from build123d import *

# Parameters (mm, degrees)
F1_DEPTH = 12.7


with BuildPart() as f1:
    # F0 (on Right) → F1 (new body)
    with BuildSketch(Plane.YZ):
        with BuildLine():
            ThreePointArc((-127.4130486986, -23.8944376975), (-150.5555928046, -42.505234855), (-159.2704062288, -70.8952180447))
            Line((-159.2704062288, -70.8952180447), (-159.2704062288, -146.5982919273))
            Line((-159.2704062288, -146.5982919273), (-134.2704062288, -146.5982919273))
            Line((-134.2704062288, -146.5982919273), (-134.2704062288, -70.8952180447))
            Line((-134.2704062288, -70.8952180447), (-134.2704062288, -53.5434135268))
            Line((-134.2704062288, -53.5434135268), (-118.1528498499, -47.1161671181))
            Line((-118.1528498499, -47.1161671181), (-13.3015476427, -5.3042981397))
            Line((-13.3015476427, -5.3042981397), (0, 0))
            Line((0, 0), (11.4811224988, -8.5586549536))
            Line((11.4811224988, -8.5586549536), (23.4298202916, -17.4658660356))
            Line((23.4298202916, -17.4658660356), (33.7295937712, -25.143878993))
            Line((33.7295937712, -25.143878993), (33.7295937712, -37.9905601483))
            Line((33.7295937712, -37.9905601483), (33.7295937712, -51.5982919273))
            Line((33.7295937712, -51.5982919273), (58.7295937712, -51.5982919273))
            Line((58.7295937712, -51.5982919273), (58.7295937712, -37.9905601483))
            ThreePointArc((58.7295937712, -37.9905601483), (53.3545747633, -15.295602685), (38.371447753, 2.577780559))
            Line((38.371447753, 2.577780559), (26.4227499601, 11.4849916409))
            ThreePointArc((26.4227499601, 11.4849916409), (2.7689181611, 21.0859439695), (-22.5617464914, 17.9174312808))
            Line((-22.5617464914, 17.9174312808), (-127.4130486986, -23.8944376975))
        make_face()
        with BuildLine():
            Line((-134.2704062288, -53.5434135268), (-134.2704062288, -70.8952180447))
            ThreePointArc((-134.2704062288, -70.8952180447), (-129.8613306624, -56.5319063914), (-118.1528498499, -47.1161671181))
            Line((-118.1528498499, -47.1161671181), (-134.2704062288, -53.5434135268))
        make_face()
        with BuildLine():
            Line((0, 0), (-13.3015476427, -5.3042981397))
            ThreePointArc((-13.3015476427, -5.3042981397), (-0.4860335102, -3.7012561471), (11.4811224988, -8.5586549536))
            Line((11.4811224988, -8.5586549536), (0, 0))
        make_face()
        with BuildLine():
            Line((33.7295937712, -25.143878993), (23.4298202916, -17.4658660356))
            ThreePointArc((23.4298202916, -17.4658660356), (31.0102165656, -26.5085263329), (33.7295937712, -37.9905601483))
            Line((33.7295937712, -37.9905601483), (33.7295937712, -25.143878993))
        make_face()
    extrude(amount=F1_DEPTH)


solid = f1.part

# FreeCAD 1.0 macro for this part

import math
import FreeCAD as App
import Part
import Sketcher
from FreeCAD import Vector
Q = App.Units.Quantity

doc = App.newDocument("Part")
params = doc.addObject("Spreadsheet::Sheet", "Params")
for row, (alias, value) in enumerate([
    ("sketch1_radius", "50.6 mm"),
    ("sketch1_radius2", "25.6 mm"),
    ("pad1_length", "12.7 mm"),
], start=1):
    params.set(f"A{row}", alias)
    params.set(f"B{row}", "=" + value)
    params.setAlias(f"B{row}", alias)

body = doc.addObject("PartDesign::Body", "Body")

sketch1 = body.newObject("Sketcher::SketchObject", "Sketch")
sketch1.AttachmentSupport = (doc.getObject("YZ_Plane"), [""])
sketch1.MapMode = "FlatFace"
sketch1.addGeometry([
    Part.ArcOfCircle(Part.Circle(Vector(-109, -71, 0), Vector(0, 0, 1), 51), math.radians(112), math.radians(180)),
    Part.LineSegment(Vector(-159, -71, 0), Vector(-159, -147, 0)),
    Part.LineSegment(Vector(-159, -147, 0), Vector(-134, -147, 0)),
    Part.LineSegment(Vector(-134, -147, 0), Vector(-134, -71, 0)),
    Part.ArcOfCircle(Part.Circle(Vector(-109, -71, 0), Vector(0, 0, 1), 26), math.radians(112), math.radians(180)),
    Part.LineSegment(Vector(-118, -47, 0), Vector(-13, -5, 0)),
    Part.ArcOfCircle(Part.Circle(Vector(-4, -29, 0), Vector(0, 0, 1), 26), math.radians(53), math.radians(112)),
    Part.LineSegment(Vector(11, -9, 0), Vector(23, -17, 0)),
    Part.ArcOfCircle(Part.Circle(Vector(8, -38, 0), Vector(0, 0, 1), 26), math.radians(0), math.radians(53)),
    Part.LineSegment(Vector(34, -38, 0), Vector(34, -52, 0)),
    Part.LineSegment(Vector(34, -52, 0), Vector(59, -52, 0)),
    Part.LineSegment(Vector(59, -52, 0), Vector(59, -38, 0)),
    Part.ArcOfCircle(Part.Circle(Vector(8, -38, 0), Vector(0, 0, 1), 51), math.radians(0), math.radians(53)),
    Part.LineSegment(Vector(38, 3, 0), Vector(26, 11, 0)),
    Part.ArcOfCircle(Part.Circle(Vector(-4, -29, 0), Vector(0, 0, 1), 51), math.radians(53), math.radians(112)),
    Part.LineSegment(Vector(-23, 18, 0), Vector(-127, -24, 0)),
], False)
sketch1.addConstraint([
    Sketcher.Constraint("Tangent", 0, 2, 1, 1),
    Sketcher.Constraint("Coincident", 1, 2, 2, 1),
    Sketcher.Constraint("Coincident", 2, 2, 3, 1),
    Sketcher.Constraint("Tangent", 3, 2, 4, 2),
    Sketcher.Constraint("Tangent", 4, 1, 5, 1),
    Sketcher.Constraint("Tangent", 5, 2, 6, 2),
    Sketcher.Constraint("Tangent", 6, 1, 7, 1),
    Sketcher.Constraint("Tangent", 7, 2, 8, 2),
    Sketcher.Constraint("Tangent", 8, 1, 9, 1),
    Sketcher.Constraint("Coincident", 9, 2, 10, 1),
    Sketcher.Constraint("Coincident", 10, 2, 11, 1),
    Sketcher.Constraint("Tangent", 11, 2, 12, 1),
    Sketcher.Constraint("Tangent", 12, 2, 13, 1),
    Sketcher.Constraint("Tangent", 13, 2, 14, 1),
    Sketcher.Constraint("Tangent", 14, 2, 15, 1),
    Sketcher.Constraint("Tangent", 15, 2, 0, 1),
    Sketcher.Constraint("Vertical", 1),
    Sketcher.Constraint("Horizontal", 2),
    Sketcher.Constraint("Vertical", 3),
    Sketcher.Constraint("Vertical", 9),
    Sketcher.Constraint("Horizontal", 10),
    Sketcher.Constraint("Vertical", 11),
    Sketcher.Constraint("Coincident", 4, 3, 0, 3),
    Sketcher.Constraint("Coincident", 12, 3, 8, 3),
    Sketcher.Constraint("Coincident", 14, 3, 6, 3),
    Sketcher.Constraint("Equal", 4, 6),
    Sketcher.Constraint("Equal", 6, 8),
    Sketcher.Constraint("Equal", 0, 12),
    Sketcher.Constraint("Equal", 12, 14),
    Sketcher.Constraint("Radius", 0, Q("50.6 mm")),
    Sketcher.Constraint("Radius", 4, Q("25.6 mm")),
    Sketcher.Constraint("DistanceX", 0, 3, 8, 3, Q("116.8 mm")),
    Sketcher.Constraint("DistanceY", 9, 2, 9, 1, Q("13.607732 mm")),
    Sketcher.Constraint("DistanceY", 5, 2, -1, 1, Q("5.304298 mm")),
    Sketcher.Constraint("DistanceX", 15, 2, 4, 1, Q("9.260199 mm")),
    Sketcher.Constraint("Distance", 5, Q("112.880592 mm")),
    Sketcher.Constraint("Distance", 7, Q("14.903348 mm")),
    Sketcher.Constraint("DistanceY", 1, 2, 1, 1, Q("75.703074 mm")),
    Sketcher.Constraint("DistanceX", 4, 1, -1, 1, Q("118.15285 mm")),
])
sketch1.setExpression("Constraints[29]", "Params.sketch1_radius")
sketch1.setExpression("Constraints[30]", "Params.sketch1_radius2")
pad1 = body.newObject("PartDesign::Pad", "Pad")
pad1.Profile = sketch1
pad1.setExpression("Length", "Params.pad1_length")

doc.recompute()
